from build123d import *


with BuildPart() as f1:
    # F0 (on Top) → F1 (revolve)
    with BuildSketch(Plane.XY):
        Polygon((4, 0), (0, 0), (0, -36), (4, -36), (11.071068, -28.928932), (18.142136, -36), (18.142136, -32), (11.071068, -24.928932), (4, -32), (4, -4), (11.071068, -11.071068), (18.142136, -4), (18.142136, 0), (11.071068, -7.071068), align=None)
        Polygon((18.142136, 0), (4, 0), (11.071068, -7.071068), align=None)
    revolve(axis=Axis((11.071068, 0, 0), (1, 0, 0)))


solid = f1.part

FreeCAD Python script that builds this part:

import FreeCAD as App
import Part
import Sketcher
from FreeCAD import Vector
Q = App.Units.Quantity


def add_polygon(sketch, points):
    """Adds a closed chain of lines whose ends are joined by coincident constraints."""
    first, n = sketch.GeometryCount, len(points)
    for a, b in zip(points, points[1:] + points[:1]):
        sketch.addGeometry(Part.LineSegment(App.Vector(*a, 0), App.Vector(*b, 0)), False)
    for i in range(n):
        sketch.addConstraint(Sketcher.Constraint("Coincident", first + i, 2, first + (i + 1) % n, 1))

doc = App.newDocument("Part")
body = doc.addObject("PartDesign::Body", "Body")

# Sketch on XY plane
sketch1 = doc.addObject("Sketcher::SketchObject", "Sketch")
body.addObject(sketch1)
sketch1.AttachmentSupport = (doc.XY_Plane, [""])
sketch1.MapMode = "FlatFace"
add_polygon(sketch1, [(0, 0), (0, -36), (4, -36), (11.1, -28.9), (18.1, -36), (18.1, -32), (11.1, -24.9), (4, -32), (4, -4), (11.1, -11.1), (18.1, -4), (18.1, 0)])  # lines 0-11
sketch1.addConstraint([
    Sketcher.Constraint("Vertical", 0),
    Sketcher.Constraint("Horizontal", 1),
    Sketcher.Constraint("Vertical", 4),
    Sketcher.Constraint("Vertical", 7),
    Sketcher.Constraint("Vertical", 10),
    Sketcher.Constraint("Horizontal", 11),
    Sketcher.Constraint("Coincident", 11, 2, -1, 1),
    Sketcher.Constraint("Perpendicular", 2, 3),
    Sketcher.Constraint("Parallel", 3, 5),
    Sketcher.Constraint("Perpendicular", 5, 6),
    Sketcher.Constraint("Perpendicular", 6, 8),
    Sketcher.Constraint("Perpendicular", 8, 9),
    Sketcher.Constraint("Horizontal", 1, 2, 3, 2),
    Sketcher.Constraint("Horizontal", 4, 2, 6, 2),
    Sketcher.Constraint("Horizontal", 7, 2, 9, 2),
    Sketcher.Constraint("Vertical", 2, 2, 5, 2),
    Sketcher.Constraint("Vertical", 5, 2, 8, 2),
    Sketcher.Constraint("Vertical", 4, 2, 9, 2),
    Sketcher.Constraint("Equal", 1, 4),
    Sketcher.Constraint("Equal", 4, 10),
    Sketcher.Constraint("DistanceX", 1, 1, 1, 2, Q("4 mm")),
    Sketcher.Constraint("DistanceY", 0, 2, 0, 1, Q("36 mm")),
    Sketcher.Constraint("Distance", 2, Q("10 mm")),
])
revolution = doc.addObject("PartDesign::Revolution", "Revolution")
body.addObject(revolution)
revolution.Profile = sketch1
revolution.ReferenceAxis = (sketch1, ["H_Axis"])
revolution.Angle = 360

doc.recompute()
